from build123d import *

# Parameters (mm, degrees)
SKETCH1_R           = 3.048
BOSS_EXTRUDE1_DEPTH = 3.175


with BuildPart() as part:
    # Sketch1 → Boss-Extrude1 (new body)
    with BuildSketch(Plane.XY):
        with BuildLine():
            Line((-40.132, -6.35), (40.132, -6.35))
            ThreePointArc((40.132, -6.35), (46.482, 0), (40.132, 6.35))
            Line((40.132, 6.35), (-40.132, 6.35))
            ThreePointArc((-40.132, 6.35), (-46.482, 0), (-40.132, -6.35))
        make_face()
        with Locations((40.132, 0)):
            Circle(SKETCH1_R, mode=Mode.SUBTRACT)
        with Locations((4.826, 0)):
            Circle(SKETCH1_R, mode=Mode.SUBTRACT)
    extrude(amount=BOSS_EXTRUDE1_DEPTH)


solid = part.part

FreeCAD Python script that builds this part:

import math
import FreeCAD as App
import Part
import Sketcher
Q = App.Units.Quantity

doc = App.newDocument("Part")
params = doc.addObject("Spreadsheet::Sheet", "Params")
for row, (alias, value) in enumerate([
    ("sketch1_diameter", "0.24 in"),
    ("sketch1_radius", "0.25 in"),
    ("sketch1_width", "3.16 in"),
    ("pad1_length", "0.125 in"),
], start=1):
    params.set(f"A{row}", alias)
    params.set(f"B{row}", "=" + value)
    params.setAlias(f"B{row}", alias)

body = doc.addObject("PartDesign::Body", "Body")

sketch1 = body.newObject("Sketcher::SketchObject", "Sketch")
sketch1.AttachmentSupport = (doc.getObject("XY_Plane"), [""])
sketch1.MapMode = "FlatFace"
sketch1.addGeometry([
    Part.LineSegment(App.Vector(-40.1, -6.3, 0), App.Vector(40.1, -6.3, 0)),
    Part.ArcOfCircle(Part.Circle(App.Vector(40.1, 0, 0), App.Vector(0, 0, 1), 6.3), math.radians(-90), math.radians(90)),
    Part.LineSegment(App.Vector(40.1, 6.3, 0), App.Vector(-40.1, 6.3, 0)),
    Part.ArcOfCircle(Part.Circle(App.Vector(-40.1, 0, 0), App.Vector(0, 0, 1), 6.3), math.radians(90), math.radians(270)),
    Part.Circle(App.Vector(4.8, 0, 0), App.Vector(0, 0, 1), 3),
    Part.Circle(App.Vector(40.1, 0, 0), App.Vector(0, 0, 1), 3),
], False)
sketch1.addConstraint([
    Sketcher.Constraint("Tangent", 0, 2, 1, 1),
    Sketcher.Constraint("Tangent", 1, 2, 2, 1),
    Sketcher.Constraint("Tangent", 2, 2, 3, 1),
    Sketcher.Constraint("Tangent", 3, 2, 0, 1),
    Sketcher.Constraint("Horizontal", 0),
    Sketcher.Constraint("Horizontal", 2),
    Sketcher.Constraint("Coincident", 5, 3, 1, 3),
    Sketcher.Constraint("Equal", 4, 5),
    Sketcher.Constraint("Symmetric", 1, 3, 3, 3, -1, 1),
    Sketcher.Constraint("PointOnObject", 4, 3, -1),
    Sketcher.Constraint("Diameter", 4, Q("0.24 in")),
    Sketcher.Constraint("Radius", 1, Q("0.25 in")),
    Sketcher.Constraint("DistanceX", 0, 1, 0, 2, Q("3.16 in")),
    Sketcher.Constraint("DistanceX", -1, 1, 4, 3, Q("0.19 in")),
])
sketch1.setExpression("Constraints[10]", "Params.sketch1_diameter")
sketch1.setExpression("Constraints[11]", "Params.sketch1_radius")
sketch1.setExpression("Constraints[12]", "Params.sketch1_width")
pad1 = body.newObject("PartDesign::Pad", "Pad")
pad1.Profile = sketch1
pad1.setExpression("Length", "Params.pad1_length")

doc.recompute()
